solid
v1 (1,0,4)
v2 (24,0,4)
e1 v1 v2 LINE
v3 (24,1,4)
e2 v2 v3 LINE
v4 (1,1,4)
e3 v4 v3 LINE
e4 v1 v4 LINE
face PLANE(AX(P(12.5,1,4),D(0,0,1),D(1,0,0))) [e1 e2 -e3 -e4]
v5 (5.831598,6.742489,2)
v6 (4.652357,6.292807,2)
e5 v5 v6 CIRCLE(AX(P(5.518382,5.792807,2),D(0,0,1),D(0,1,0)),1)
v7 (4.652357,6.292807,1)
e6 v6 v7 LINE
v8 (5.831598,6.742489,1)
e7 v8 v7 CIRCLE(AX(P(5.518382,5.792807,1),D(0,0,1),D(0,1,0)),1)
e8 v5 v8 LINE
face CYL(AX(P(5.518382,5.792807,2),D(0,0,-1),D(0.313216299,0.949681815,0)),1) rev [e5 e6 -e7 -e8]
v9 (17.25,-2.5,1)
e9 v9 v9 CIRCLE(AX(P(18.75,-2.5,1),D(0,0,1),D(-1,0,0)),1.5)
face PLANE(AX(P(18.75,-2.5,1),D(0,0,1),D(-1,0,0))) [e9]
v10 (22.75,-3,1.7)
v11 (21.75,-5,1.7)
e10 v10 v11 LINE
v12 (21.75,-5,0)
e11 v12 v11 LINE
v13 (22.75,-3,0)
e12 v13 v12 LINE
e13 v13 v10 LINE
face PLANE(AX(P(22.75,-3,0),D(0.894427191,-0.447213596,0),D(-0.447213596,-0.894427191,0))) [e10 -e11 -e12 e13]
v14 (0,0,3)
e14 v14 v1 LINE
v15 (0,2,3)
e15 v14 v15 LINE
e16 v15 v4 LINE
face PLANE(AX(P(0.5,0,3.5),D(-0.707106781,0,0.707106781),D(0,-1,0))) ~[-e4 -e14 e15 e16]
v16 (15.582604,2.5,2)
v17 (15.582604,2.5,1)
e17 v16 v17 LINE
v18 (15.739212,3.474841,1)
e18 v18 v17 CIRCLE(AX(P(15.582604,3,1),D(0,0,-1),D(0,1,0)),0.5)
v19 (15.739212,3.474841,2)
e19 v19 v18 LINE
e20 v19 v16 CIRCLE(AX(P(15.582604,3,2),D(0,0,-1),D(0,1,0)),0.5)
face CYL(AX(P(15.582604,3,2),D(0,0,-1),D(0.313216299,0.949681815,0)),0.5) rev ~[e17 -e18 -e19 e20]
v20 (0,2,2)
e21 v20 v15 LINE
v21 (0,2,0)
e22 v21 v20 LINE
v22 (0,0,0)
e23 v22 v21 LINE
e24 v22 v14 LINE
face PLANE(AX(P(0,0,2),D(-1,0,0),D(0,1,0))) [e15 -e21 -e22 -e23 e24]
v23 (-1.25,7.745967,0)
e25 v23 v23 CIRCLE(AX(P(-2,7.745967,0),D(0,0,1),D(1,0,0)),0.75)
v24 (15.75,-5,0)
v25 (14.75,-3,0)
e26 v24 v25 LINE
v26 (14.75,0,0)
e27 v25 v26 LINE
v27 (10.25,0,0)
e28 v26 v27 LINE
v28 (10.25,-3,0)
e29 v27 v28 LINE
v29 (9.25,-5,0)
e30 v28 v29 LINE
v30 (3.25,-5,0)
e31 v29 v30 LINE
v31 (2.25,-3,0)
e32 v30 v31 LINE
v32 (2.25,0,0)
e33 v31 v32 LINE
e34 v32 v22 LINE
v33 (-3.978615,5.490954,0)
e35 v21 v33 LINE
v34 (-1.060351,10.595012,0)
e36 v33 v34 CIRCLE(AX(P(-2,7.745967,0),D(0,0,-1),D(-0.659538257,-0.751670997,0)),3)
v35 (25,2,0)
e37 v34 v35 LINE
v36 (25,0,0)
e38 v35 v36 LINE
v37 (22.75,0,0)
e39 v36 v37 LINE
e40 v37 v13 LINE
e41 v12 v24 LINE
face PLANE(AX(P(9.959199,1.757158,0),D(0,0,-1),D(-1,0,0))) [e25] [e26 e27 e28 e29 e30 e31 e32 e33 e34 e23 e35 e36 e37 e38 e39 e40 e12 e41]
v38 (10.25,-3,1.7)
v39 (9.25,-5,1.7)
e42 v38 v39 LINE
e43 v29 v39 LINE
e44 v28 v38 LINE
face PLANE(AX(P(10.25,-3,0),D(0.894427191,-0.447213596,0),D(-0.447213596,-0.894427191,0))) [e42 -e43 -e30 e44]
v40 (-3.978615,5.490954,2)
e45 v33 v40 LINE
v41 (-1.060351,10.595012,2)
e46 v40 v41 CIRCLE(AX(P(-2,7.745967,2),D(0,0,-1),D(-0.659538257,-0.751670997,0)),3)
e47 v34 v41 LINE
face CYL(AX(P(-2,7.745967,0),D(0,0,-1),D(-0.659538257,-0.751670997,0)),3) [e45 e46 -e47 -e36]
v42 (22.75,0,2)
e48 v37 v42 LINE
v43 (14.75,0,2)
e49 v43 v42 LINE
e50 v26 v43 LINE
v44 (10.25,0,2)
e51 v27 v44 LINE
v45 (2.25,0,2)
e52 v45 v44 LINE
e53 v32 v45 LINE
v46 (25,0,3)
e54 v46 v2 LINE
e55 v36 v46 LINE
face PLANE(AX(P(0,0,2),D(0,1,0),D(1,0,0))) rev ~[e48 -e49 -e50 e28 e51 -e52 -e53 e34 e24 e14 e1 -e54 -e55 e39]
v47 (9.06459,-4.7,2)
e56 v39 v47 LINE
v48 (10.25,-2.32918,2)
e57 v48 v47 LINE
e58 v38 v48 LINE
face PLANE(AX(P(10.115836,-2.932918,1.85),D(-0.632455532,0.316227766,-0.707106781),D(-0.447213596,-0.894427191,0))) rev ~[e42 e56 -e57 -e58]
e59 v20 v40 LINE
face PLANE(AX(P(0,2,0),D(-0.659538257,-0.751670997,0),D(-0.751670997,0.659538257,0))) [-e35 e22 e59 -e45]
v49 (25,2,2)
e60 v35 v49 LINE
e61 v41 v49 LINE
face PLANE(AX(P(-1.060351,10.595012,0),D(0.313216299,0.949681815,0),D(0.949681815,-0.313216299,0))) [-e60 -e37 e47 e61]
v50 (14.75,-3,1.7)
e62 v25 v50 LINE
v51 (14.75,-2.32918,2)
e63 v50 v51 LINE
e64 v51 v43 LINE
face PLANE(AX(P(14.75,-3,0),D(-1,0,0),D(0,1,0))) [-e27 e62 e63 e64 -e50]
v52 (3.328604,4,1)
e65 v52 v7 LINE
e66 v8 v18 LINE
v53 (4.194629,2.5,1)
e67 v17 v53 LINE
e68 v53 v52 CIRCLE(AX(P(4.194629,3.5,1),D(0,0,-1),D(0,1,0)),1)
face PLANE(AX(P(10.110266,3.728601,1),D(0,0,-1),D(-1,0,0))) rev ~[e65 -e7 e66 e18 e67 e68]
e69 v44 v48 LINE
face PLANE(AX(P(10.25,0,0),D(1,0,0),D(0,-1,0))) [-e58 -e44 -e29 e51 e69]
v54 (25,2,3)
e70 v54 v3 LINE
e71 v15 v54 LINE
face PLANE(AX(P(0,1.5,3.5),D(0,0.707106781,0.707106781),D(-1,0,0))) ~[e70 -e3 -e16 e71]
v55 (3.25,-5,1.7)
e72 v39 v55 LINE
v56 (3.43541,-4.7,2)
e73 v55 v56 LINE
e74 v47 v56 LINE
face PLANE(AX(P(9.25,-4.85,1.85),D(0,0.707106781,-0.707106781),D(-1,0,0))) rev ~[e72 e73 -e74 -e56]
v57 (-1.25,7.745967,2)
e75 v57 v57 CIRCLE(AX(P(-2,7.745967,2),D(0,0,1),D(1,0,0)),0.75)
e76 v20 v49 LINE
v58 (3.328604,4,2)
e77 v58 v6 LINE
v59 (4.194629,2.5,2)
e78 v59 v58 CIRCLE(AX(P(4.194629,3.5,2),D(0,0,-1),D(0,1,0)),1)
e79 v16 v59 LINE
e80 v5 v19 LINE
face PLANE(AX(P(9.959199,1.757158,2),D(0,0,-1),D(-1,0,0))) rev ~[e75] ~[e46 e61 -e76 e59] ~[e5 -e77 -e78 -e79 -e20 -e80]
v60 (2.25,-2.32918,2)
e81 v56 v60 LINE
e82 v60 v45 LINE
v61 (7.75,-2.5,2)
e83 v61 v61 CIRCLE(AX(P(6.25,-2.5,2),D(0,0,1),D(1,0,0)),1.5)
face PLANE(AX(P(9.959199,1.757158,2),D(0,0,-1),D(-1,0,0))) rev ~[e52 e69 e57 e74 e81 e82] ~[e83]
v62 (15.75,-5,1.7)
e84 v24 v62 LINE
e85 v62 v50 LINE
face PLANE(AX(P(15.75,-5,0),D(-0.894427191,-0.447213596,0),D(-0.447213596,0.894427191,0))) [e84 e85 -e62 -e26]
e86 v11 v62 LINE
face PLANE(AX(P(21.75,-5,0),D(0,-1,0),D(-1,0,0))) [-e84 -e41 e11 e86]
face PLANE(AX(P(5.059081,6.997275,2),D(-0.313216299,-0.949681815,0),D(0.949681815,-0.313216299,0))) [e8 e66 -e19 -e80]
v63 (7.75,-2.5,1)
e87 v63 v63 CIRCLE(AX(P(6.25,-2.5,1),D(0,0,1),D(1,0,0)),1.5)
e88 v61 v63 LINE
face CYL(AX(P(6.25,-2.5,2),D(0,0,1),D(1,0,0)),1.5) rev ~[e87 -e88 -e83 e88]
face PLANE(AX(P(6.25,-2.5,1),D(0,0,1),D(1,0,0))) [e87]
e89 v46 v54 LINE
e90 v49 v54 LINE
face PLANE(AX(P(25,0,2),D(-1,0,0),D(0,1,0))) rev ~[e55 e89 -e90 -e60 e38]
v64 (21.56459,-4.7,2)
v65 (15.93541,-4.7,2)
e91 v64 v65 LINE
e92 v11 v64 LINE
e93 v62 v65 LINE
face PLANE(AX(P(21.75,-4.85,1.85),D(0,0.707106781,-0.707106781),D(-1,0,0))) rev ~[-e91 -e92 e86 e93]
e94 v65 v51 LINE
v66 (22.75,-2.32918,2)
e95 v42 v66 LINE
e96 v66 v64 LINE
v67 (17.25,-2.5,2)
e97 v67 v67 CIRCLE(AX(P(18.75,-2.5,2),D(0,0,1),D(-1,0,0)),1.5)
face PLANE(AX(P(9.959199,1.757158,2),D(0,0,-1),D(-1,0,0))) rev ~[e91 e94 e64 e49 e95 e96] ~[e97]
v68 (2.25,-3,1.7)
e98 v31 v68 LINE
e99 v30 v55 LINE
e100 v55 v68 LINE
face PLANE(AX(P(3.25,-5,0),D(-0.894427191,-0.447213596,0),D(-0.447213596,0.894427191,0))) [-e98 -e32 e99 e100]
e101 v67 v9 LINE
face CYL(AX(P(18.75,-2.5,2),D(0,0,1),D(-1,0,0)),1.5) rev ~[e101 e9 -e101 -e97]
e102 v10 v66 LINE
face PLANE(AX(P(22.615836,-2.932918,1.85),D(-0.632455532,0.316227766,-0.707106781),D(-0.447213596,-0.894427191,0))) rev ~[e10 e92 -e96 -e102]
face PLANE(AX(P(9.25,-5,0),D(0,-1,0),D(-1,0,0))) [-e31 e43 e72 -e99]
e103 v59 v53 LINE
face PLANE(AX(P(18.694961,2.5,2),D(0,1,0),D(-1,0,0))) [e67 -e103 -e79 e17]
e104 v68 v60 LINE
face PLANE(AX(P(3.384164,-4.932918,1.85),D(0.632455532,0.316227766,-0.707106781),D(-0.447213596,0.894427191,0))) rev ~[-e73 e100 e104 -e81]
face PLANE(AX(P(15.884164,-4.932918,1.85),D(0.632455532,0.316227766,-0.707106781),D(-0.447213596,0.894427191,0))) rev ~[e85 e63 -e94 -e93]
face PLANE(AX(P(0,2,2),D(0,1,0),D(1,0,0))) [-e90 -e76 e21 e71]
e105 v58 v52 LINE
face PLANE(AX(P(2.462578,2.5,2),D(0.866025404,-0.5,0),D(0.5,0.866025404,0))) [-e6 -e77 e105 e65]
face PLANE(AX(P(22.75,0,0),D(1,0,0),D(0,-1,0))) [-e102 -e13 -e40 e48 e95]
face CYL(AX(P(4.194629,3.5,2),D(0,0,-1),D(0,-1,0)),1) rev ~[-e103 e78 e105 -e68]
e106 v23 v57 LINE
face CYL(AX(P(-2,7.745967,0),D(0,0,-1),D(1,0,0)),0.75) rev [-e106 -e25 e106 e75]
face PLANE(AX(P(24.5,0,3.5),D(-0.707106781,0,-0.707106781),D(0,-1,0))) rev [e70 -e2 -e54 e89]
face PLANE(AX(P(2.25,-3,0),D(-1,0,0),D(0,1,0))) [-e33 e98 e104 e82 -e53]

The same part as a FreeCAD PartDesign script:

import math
import FreeCAD as App
import Part
import Sketcher
from FreeCAD import Vector
Q = App.Units.Quantity


def edges_at(feature, points):
    """Names of the edges that pass closest to the given points."""
    edges = feature.Shape.Edges
    near = lambda p: min(range(len(edges)), key=lambda i: edges[i].distToShape(Part.Vertex(*p))[0])
    return sorted({f"Edge{near(p) + 1}" for p in points})


def add_polygon(sketch, points):
    """Adds a closed chain of lines whose ends are joined by coincident constraints."""
    first, n = sketch.GeometryCount, len(points)
    for a, b in zip(points, points[1:] + points[:1]):
        sketch.addGeometry(Part.LineSegment(App.Vector(*a, 0), App.Vector(*b, 0)), False)
    for i in range(n):
        sketch.addConstraint(Sketcher.Constraint("Coincident", first + i, 2, first + (i + 1) % n, 1))

doc = App.newDocument("Part")
body = doc.addObject("PartDesign::Body", "Body")

# Sketch on XY plane
sketch1 = doc.addObject("Sketcher::SketchObject", "Sketch")
body.addObject(sketch1)
sketch1.AttachmentSupport = (doc.XY_Plane, [""])
sketch1.MapMode = "FlatFace"
sketch1.addGeometry([
    Part.LineSegment(Vector(3.25, -5, 0), Vector(9.25, -5, 0)),  # 0
    Part.LineSegment(Vector(9.25, -5, 0), Vector(10.25, -3, 0)),  # 1
    Part.LineSegment(Vector(10.25, -3, 0), Vector(10.25, 0, 0)),  # 2
    Part.LineSegment(Vector(10.25, 0, 0), Vector(14.75, 0, 0)),  # 3
    Part.LineSegment(Vector(14.75, 0, 0), Vector(14.75, -3, 0)),  # 4
    Part.LineSegment(Vector(14.75, -3, 0), Vector(15.75, -5, 0)),  # 5
    Part.LineSegment(Vector(15.75, -5, 0), Vector(21.75, -5, 0)),  # 6
    Part.LineSegment(Vector(21.75, -5, 0), Vector(22.75, -3, 0)),  # 7
    Part.LineSegment(Vector(22.75, -3, 0), Vector(22.75, 0, 0)),  # 8
    Part.LineSegment(Vector(22.75, 0, 0), Vector(25, 0, 0)),  # 9
    Part.LineSegment(Vector(25, 0, 0), Vector(25, 2, 0)),  # 10
    Part.LineSegment(Vector(25, 2, 0), Vector(-1.060351, 10.595012, 0)),  # 11
    Part.ArcOfCircle(Part.Circle(Vector(-2, 7.745967, 0), Vector(0, 0, 1), 3), math.radians(71.746833), math.radians(228.735333)),  # 12
    Part.LineSegment(Vector(-3.978615, 5.490954, 0), Vector(0, 2, 0)),  # 13
    Part.LineSegment(Vector(0, 2, 0), Vector(0, 0, 0)),  # 14
    Part.LineSegment(Vector(0, 0, 0), Vector(2.25, 0, 0)),  # 15
    Part.LineSegment(Vector(2.25, 0, 0), Vector(2.25, -3, 0)),  # 16
    Part.LineSegment(Vector(2.25, -3, 0), Vector(3.25, -5, 0)),  # 17
    Part.Circle(Vector(-2, 7.745967, 0), Vector(0, 0, 1), 0.75),  # 18
], False)
sketch1.addConstraint([
    Sketcher.Constraint("Coincident", 0, 2, 1, 1),
    Sketcher.Constraint("Coincident", 1, 2, 2, 1),
    Sketcher.Constraint("Coincident", 2, 2, 3, 1),
    Sketcher.Constraint("Coincident", 3, 2, 4, 1),
    Sketcher.Constraint("Coincident", 4, 2, 5, 1),
    Sketcher.Constraint("Coincident", 5, 2, 6, 1),
    Sketcher.Constraint("Coincident", 6, 2, 7, 1),
    Sketcher.Constraint("Coincident", 7, 2, 8, 1),
    Sketcher.Constraint("Coincident", 8, 2, 9, 1),
    Sketcher.Constraint("Coincident", 9, 2, 10, 1),
    Sketcher.Constraint("Coincident", 10, 2, 11, 1),
    Sketcher.Constraint("Tangent", 11, 2, 12, 1),
    Sketcher.Constraint("Tangent", 12, 2, 13, 1),
    Sketcher.Constraint("Coincident", 13, 2, 14, 1),
    Sketcher.Constraint("Coincident", 14, 2, 15, 1),
    Sketcher.Constraint("Coincident", 15, 2, 16, 1),
    Sketcher.Constraint("Coincident", 16, 2, 17, 1),
    Sketcher.Constraint("Coincident", 17, 2, 0, 1),
    Sketcher.Constraint("Horizontal", 0),
    Sketcher.Constraint("Vertical", 2),
    Sketcher.Constraint("Horizontal", 3),
    Sketcher.Constraint("Vertical", 4),
    Sketcher.Constraint("Horizontal", 6),
    Sketcher.Constraint("Vertical", 8),
    Sketcher.Constraint("Horizontal", 9),
    Sketcher.Constraint("Vertical", 10),
    Sketcher.Constraint("Vertical", 14),
    Sketcher.Constraint("Horizontal", 15),
    Sketcher.Constraint("Vertical", 16),
    Sketcher.Constraint("Coincident", 14, 2, -1, 1),
    Sketcher.Constraint("Coincident", 18, 3, 12, 3),
    Sketcher.Constraint("PointOnObject", 2, 2, -1),
    Sketcher.Constraint("PointOnObject", 8, 2, -1),
    Sketcher.Constraint("Parallel", 1, 7),
    Sketcher.Constraint("Parallel", 5, 17),
    Sketcher.Constraint("Horizontal", 1, 2, 4, 2),
    Sketcher.Constraint("Horizontal", 0, 2, 5, 2),
    Sketcher.Constraint("Horizontal", 4, 2, 7, 2),
    Sketcher.Constraint("Horizontal", 10, 2, 13, 2),
    Sketcher.Constraint("Horizontal", 7, 2, 16, 2),
    Sketcher.Constraint("Equal", 0, 6),
    Sketcher.Constraint("Equal", 9, 15),
    Sketcher.Constraint("Equal", 1, 5),
    Sketcher.Constraint("Radius", 12, 3.0),
    Sketcher.Constraint("Diameter", 18, 1.5),
    Sketcher.Constraint("DistanceX", 0, 1, 0, 2, 6.0),
    Sketcher.Constraint("DistanceY", 2, 1, 2, 2, 3.0),
    Sketcher.Constraint("DistanceY", 10, 1, 10, 2, 2.0),
    Sketcher.Constraint("DistanceX", 3, 1, 3, 2, 4.5),
    Sketcher.Constraint("DistanceX", 12, 3, -1, 1, 2.0),
    Sketcher.Constraint("DistanceY", 0, 2, -1, 1, 5.0),
    Sketcher.Constraint("DistanceX", -1, 1, 9, 2, 25.0),
    Sketcher.Constraint("DistanceX", 0, 2, 1, 2, 1.0),
    Sketcher.Constraint("Distance", 11, 27.441139),
])
pad1 = doc.addObject("PartDesign::Pad", "Pad")
body.addObject(pad1)
pad1.Profile = sketch1
pad1.Length = 2

# Sketch on XY plane
sketch2 = doc.addObject("Sketcher::SketchObject", "Sketch001")
body.addObject(sketch2)
sketch2.AttachmentSupport = (doc.XY_Plane, [""])
sketch2.MapMode = "FlatFace"
sketch2.AttachmentOffset = App.Placement(Vector(0, 0, 2), App.Rotation())
sketch2.addGeometry([
    Part.Circle(Vector(6.25, -2.5, 0), Vector(0, 0, 1), 1.5),
    Part.Circle(Vector(18.75, -2.5, 0), Vector(0, 0, 1), 1.5),
], False)
sketch2.addConstraint([
    Sketcher.Constraint("Equal", 0, 1),
    Sketcher.Constraint("Horizontal", 0, 3, 1, 3),
    Sketcher.Constraint("Diameter", 0, 3.0),
    Sketcher.Constraint("DistanceY", 0, 3, -1, 1, 2.5),
    Sketcher.Constraint("DistanceX", 0, 3, 1, 3, 12.5),
    Sketcher.Constraint("DistanceX", -1, 1, 0, 3, 6.25),
])
pocket1 = doc.addObject("PartDesign::Pocket", "Pocket")
body.addObject(pocket1)
pocket1.Profile = sketch2
pocket1.Length = 1

# Sketch on XY plane
sketch3 = doc.addObject("Sketcher::SketchObject", "Sketch002")
body.addObject(sketch3)
sketch3.AttachmentSupport = (doc.XY_Plane, [""])
sketch3.MapMode = "FlatFace"
sketch3.AttachmentOffset = App.Placement(Vector(0, 0, 2), App.Rotation())
add_polygon(sketch3, [(0, 2), (0, 0), (25, 0), (25, 2)])  # lines 0-3
sketch3.addConstraint([
    Sketcher.Constraint("Vertical", 0),
    Sketcher.Constraint("Horizontal", 1),
    Sketcher.Constraint("Vertical", 2),
    Sketcher.Constraint("Horizontal", 3),
    Sketcher.Constraint("Coincident", 0, 2, -1, 1),
    Sketcher.Constraint("DistanceX", 1, 1, 1, 2, 25.0),
    Sketcher.Constraint("DistanceY", 0, 2, 0, 1, 2.0),
])
pad2 = doc.addObject("PartDesign::Pad", "Pad001")
body.addObject(pad2)
pad2.Profile = sketch3
pad2.Length = 2
doc.recompute()

chamfer = doc.addObject("PartDesign::Chamfer", "Chamfer")
body.addObject(chamfer)
chamfer.Base = (pad2, edges_at(pad2, [(0, 1, 4), (25, 1, 4), (12.5, 2, 4)]))
chamfer.Size = 1

# Sketch on XY plane
sketch4 = doc.addObject("Sketcher::SketchObject", "Sketch003")
body.addObject(sketch4)
sketch4.AttachmentSupport = (doc.XY_Plane, [""])
sketch4.MapMode = "FlatFace"
sketch4.AttachmentOffset = App.Placement(Vector(0, 0, 2), App.Rotation())
add_polygon(sketch4, [(18.694961, 2.5), (5.059081, 6.997275), (2.462578, 2.5)])  # lines 0-2
sketch4.addConstraint([
    Sketcher.Constraint("Horizontal", 2),
    Sketcher.Constraint("Angle", 1, Q("-120 deg")),
    Sketcher.Constraint("DistanceY", -1, 1, 1, 2, 2.5),
    Sketcher.Constraint("DistanceX", 2, 1, 2, 2, 16.232383),
    Sketcher.Constraint("DistanceX", -1, 1, 0, 2, 5.059081),
    Sketcher.Constraint("DistanceX", -1, 1, 1, 2, 2.462578),
])
pocket2 = doc.addObject("PartDesign::Pocket", "Pocket001")
body.addObject(pocket2)
pocket2.Profile = sketch4
pocket2.Length = 1
doc.recompute()

fillet = doc.addObject("PartDesign::Fillet", "Fillet")
body.addObject(fillet)
fillet.Base = (pocket2, edges_at(pocket2, [(2.463, 2.5, 1.5), (5.059, 6.997, 1.5)]))
fillet.Radius = 1
doc.recompute()

fillet2 = doc.addObject("PartDesign::Fillet", "Fillet001")
body.addObject(fillet2)
fillet2.Base = (fillet, edges_at(fillet, [(18.695, 2.5, 1.5)]))
fillet2.Radius = 0.5
doc.recompute()

chamfer2 = doc.addObject("PartDesign::Chamfer", "Chamfer001")
body.addObject(chamfer2)
chamfer2.Base = (fillet2, edges_at(fillet2, [
    (2.75, -4, 2),
    (6.25, -5, 2),
    (9.75, -4, 2),
    (15.25, -4, 2),
    (18.75, -5, 2),
    (22.25, -4, 2),
]))
chamfer2.Size = 0.3

doc.recompute()
